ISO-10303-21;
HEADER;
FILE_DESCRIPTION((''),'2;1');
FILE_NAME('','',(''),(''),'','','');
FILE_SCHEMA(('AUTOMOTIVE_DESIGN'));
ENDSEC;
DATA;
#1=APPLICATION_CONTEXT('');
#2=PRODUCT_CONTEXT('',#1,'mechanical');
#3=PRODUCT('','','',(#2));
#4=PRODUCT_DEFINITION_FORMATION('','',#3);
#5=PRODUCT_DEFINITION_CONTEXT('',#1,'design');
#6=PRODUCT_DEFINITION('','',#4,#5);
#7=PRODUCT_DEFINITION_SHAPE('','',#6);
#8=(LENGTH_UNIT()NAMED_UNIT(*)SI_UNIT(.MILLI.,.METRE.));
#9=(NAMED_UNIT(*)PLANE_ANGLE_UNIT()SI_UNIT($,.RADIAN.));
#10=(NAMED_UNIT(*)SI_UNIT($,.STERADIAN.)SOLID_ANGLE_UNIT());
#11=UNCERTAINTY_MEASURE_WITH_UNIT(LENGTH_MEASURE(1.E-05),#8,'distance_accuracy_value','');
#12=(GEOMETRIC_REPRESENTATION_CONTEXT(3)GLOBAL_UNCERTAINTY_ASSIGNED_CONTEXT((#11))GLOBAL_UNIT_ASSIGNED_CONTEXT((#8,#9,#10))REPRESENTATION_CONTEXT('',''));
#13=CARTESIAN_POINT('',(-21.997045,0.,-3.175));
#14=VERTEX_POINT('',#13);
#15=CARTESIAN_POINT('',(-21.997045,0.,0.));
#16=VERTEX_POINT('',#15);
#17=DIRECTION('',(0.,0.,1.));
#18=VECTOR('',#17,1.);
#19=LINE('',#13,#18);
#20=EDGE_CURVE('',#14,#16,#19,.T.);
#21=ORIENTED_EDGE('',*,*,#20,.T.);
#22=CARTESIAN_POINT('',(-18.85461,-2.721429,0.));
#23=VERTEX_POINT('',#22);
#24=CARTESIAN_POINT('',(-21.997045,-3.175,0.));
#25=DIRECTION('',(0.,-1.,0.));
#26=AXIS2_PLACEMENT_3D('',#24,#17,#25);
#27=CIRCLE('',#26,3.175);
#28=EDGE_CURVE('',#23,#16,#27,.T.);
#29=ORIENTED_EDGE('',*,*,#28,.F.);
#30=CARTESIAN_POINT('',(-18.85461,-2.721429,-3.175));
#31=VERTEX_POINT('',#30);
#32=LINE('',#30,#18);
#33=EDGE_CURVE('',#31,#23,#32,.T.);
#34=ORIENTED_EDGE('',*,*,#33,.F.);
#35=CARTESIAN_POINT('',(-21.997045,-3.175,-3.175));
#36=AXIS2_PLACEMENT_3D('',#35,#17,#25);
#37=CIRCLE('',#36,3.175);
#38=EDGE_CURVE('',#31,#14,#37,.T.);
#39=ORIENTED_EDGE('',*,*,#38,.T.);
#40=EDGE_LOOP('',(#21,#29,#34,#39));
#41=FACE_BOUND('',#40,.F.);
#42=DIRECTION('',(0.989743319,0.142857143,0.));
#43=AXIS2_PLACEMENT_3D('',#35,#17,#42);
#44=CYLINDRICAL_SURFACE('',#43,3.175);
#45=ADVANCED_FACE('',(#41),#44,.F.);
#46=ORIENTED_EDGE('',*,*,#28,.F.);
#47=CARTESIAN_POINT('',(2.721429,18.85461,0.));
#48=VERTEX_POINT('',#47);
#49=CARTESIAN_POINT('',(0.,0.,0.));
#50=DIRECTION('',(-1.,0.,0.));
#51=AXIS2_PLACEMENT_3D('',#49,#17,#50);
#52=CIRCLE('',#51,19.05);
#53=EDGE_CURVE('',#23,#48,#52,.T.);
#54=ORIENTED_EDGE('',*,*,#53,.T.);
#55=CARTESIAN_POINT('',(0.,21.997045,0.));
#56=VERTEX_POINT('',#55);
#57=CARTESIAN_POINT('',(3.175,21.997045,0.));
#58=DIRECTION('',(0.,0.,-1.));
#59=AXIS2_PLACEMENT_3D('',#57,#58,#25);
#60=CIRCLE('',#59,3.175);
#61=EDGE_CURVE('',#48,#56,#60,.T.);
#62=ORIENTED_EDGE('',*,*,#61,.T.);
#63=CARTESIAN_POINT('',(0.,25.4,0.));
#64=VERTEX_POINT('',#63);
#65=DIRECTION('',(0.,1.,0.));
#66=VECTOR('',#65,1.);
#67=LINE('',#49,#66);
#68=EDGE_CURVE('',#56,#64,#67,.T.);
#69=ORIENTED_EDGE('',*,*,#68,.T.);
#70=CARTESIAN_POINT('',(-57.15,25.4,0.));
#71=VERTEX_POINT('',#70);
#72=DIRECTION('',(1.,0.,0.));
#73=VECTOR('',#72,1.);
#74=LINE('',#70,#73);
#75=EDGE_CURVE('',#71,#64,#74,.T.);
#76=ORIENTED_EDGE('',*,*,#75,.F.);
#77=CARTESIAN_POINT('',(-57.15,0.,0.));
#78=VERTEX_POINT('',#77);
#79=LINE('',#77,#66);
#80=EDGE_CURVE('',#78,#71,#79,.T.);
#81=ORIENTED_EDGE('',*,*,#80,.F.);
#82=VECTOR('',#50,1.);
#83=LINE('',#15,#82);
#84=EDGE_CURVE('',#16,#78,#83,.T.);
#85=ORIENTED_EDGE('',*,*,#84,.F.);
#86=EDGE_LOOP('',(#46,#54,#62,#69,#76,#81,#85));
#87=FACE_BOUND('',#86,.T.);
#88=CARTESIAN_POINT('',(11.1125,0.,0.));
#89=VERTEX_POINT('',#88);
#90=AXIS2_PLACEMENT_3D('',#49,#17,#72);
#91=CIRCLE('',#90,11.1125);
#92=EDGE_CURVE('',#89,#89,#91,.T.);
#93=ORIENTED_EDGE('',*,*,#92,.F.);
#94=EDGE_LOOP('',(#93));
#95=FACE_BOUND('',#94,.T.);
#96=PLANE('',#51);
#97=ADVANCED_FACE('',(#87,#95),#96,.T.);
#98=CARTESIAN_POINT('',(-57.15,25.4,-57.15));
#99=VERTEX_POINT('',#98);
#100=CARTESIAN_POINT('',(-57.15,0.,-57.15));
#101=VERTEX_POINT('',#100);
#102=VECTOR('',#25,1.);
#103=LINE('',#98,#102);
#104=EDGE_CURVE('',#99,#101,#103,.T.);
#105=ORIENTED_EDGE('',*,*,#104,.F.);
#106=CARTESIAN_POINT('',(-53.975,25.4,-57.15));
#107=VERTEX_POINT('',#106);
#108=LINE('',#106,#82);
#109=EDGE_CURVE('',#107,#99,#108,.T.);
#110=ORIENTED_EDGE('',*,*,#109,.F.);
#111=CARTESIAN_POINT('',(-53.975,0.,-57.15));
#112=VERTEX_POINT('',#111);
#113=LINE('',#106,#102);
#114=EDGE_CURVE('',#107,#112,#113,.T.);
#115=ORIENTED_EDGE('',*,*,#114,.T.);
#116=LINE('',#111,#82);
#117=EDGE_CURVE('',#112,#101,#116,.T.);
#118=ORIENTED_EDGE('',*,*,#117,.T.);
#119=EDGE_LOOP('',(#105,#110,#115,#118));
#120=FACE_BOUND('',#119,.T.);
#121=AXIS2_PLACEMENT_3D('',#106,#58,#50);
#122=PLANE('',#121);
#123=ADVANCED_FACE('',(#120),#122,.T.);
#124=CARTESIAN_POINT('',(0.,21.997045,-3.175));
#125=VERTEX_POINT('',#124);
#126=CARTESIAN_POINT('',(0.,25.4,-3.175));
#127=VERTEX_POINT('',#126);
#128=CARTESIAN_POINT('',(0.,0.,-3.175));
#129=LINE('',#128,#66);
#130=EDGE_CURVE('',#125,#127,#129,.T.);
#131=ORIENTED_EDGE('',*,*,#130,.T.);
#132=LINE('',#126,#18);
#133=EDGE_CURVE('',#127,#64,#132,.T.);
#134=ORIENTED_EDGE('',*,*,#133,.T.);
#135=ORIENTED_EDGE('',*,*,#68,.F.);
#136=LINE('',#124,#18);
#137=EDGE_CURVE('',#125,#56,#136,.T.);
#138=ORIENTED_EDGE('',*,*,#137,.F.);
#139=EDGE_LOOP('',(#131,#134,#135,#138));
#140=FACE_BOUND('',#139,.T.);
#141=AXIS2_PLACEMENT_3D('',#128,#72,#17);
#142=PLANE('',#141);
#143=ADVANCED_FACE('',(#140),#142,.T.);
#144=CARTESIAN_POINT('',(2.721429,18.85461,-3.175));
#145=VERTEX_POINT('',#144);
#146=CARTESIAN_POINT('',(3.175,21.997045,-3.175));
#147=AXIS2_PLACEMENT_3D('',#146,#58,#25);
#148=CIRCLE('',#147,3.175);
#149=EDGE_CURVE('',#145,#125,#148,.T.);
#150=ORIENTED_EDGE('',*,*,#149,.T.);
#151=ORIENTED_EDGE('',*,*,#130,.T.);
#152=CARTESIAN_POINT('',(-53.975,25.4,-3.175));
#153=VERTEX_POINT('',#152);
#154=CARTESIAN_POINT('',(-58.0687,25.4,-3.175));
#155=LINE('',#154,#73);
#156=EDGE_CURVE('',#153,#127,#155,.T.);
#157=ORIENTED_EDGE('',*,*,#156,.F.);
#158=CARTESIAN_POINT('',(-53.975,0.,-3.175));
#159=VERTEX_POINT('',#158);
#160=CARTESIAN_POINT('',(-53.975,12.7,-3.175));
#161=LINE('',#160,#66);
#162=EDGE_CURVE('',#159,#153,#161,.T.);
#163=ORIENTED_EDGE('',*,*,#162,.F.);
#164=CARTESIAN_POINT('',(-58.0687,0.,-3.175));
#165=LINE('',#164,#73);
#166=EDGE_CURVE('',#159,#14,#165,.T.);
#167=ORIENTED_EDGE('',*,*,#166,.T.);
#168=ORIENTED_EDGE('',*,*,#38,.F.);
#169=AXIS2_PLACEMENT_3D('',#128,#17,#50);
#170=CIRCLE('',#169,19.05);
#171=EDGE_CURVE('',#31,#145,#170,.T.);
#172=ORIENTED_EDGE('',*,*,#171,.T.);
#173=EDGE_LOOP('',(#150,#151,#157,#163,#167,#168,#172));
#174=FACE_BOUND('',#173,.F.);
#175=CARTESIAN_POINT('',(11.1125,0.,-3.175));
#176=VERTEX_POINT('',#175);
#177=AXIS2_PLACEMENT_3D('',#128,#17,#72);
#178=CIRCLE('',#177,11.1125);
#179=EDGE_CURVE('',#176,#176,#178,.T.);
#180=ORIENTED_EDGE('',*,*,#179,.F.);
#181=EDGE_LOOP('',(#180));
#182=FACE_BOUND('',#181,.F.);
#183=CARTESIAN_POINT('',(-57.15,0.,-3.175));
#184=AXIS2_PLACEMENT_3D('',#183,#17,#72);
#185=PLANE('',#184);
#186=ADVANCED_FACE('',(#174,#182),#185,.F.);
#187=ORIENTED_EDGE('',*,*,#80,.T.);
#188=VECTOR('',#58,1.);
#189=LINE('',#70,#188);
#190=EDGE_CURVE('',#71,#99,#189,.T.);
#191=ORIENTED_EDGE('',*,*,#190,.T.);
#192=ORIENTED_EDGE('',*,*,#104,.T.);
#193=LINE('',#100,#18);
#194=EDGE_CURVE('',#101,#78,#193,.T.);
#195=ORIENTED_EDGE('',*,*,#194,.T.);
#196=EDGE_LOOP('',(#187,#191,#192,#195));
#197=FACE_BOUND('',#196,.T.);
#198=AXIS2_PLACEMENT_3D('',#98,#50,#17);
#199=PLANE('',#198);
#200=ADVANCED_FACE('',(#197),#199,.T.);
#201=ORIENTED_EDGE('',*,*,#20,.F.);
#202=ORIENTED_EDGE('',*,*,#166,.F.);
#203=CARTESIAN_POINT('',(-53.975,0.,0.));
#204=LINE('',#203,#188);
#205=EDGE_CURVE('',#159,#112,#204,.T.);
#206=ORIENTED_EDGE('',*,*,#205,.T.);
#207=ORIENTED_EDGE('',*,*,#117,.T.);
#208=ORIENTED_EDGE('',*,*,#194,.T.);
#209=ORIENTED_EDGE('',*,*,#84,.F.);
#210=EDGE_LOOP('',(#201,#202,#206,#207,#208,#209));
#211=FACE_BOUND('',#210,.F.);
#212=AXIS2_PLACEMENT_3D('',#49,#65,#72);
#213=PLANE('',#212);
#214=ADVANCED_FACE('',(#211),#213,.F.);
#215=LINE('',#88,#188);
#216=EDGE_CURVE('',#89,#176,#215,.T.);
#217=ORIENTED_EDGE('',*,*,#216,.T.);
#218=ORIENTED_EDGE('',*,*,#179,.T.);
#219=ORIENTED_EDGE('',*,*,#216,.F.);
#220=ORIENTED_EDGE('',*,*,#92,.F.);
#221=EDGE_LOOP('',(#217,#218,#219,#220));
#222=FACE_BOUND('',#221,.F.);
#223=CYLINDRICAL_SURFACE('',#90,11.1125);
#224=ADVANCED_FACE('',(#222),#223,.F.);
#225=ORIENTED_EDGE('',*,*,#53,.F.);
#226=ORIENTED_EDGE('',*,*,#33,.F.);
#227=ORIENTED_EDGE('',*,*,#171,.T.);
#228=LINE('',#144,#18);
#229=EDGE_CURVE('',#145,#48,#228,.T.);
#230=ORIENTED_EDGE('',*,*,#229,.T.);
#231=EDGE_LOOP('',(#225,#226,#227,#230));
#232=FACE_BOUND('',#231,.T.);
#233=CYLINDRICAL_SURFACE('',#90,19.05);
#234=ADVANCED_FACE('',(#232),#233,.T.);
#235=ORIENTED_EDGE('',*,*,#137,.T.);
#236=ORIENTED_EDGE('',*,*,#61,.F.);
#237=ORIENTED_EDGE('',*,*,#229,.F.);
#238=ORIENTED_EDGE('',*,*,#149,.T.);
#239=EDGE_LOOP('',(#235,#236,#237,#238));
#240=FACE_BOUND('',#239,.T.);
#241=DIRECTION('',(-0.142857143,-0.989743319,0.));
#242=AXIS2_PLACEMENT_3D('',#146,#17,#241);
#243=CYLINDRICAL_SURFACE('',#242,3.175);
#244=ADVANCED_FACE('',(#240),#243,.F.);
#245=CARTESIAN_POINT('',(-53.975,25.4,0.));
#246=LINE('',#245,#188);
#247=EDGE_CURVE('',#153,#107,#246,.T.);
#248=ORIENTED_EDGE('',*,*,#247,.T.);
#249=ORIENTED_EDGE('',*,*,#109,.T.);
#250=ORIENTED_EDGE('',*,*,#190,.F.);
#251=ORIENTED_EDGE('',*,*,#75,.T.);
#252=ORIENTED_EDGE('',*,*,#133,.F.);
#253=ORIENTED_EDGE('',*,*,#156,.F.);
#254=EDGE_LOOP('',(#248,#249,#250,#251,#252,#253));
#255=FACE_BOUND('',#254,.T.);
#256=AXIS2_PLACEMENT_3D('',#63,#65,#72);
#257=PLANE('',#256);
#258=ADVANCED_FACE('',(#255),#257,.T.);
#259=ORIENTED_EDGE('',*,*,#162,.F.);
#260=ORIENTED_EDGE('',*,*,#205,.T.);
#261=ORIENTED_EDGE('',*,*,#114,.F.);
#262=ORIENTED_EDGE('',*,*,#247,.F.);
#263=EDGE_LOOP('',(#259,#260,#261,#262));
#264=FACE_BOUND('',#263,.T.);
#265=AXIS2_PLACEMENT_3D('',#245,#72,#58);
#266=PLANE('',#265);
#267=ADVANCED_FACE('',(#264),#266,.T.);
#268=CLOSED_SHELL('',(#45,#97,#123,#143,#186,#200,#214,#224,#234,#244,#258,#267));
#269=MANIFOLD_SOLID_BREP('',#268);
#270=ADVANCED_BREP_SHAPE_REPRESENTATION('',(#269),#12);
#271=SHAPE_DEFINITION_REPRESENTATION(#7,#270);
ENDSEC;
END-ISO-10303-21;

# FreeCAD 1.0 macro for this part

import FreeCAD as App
import Part
import Sketcher
Q = App.Units.Quantity


def edges_at(feature, points):
    """Names of the edges that pass closest to the given points."""
    edges = feature.Shape.Edges
    near = lambda p: min(range(len(edges)), key=lambda i: edges[i].distToShape(Part.Vertex(*p))[0])
    return sorted({f"Edge{near(p) + 1}" for p in points})

doc = App.newDocument("Part")
params = doc.addObject("Spreadsheet::Sheet", "Params")
for row, (alias, value) in enumerate([
    ("sketch1_length", "2.5 in"),
    ("sketch1_width", "2.25 in"),
    ("sketch1_height", "0.125 in"),
    ("sketch1_length2", "0.125 in"),
    ("pad1_length", "1 in"),
    ("sketch2_diameter", "1.5 in"),
    ("pad2_length", "0.125 in"),
    ("sketch3_diameter", "0.875 in"),
    ("pocket1_length", "0.125 in"),
    ("fillet_radius", "0.125 in"),
    ("pocket2_length", "2.4375 in"),
    ("sketch5_height", "2.25 in"),
    ("sketch5_width", "0.125 in"),
    ("pad3_length", "1 in"),
], start=1):
    params.set(f"A{row}", alias)
    params.set(f"B{row}", "=" + value)
    params.setAlias(f"B{row}", alias)

body = doc.addObject("PartDesign::Body", "Body")

# Sketch on XZ plane
sketch1 = doc.addObject("Sketcher::SketchObject", "Sketch")
body.addObject(sketch1)
sketch1.AttachmentSupport = (doc.XZ_Plane, [""])
sketch1.MapMode = "FlatFace"
sketch1.addGeometry(Part.LineSegment(App.Vector(-57.1, 0, 0), App.Vector(0, 0, 0)), False)
sketch1.addGeometry(Part.LineSegment(App.Vector(0, 0, 0), App.Vector(0, -3.2, 0)), False)
sketch1.addGeometry(Part.LineSegment(App.Vector(0, -3.2, 0), App.Vector(-58.1, -3.2, 0)), False)
sketch1.addGeometry(Part.LineSegment(App.Vector(-58.1, -3.2, 0), App.Vector(-112.5, 31.2, 0)), False)
sketch1.addGeometry(Part.LineSegment(App.Vector(-112.5, 31.2, 0), App.Vector(-110.8, 33.9, 0)), False)
sketch1.addGeometry(Part.LineSegment(App.Vector(-110.8, 33.9, 0), App.Vector(-57.1, 0, 0)), False)
sketch1.addConstraint(Sketcher.Constraint("Coincident", 0, 2, 1, 1))
sketch1.addConstraint(Sketcher.Constraint("Coincident", 1, 2, 2, 1))
sketch1.addConstraint(Sketcher.Constraint("Coincident", 2, 2, 3, 1))
sketch1.addConstraint(Sketcher.Constraint("Coincident", 3, 2, 4, 1))
sketch1.addConstraint(Sketcher.Constraint("Coincident", 4, 2, 5, 1))
sketch1.addConstraint(Sketcher.Constraint("Coincident", 5, 2, 0, 1))
sketch1.addConstraint(Sketcher.Constraint("Horizontal", 0))
sketch1.addConstraint(Sketcher.Constraint("Vertical", 1))
sketch1.addConstraint(Sketcher.Constraint("Horizontal", 2))
sketch1.addConstraint(Sketcher.Constraint("Coincident", 0, 2, -1, 1))
sketch1.addConstraint(Sketcher.Constraint("Perpendicular", 3, 4))
sketch1.addConstraint(Sketcher.Constraint("Perpendicular", 4, 5))
sketch1.addConstraint(Sketcher.Constraint("Distance", 5, Q("2.5 in")))
sketch1.addConstraint(Sketcher.Constraint("DistanceX", 0, 1, 0, 2, Q("2.25 in")))
sketch1.addConstraint(Sketcher.Constraint("DistanceY", 1, 2, 1, 1, Q("0.125 in")))
sketch1.addConstraint(Sketcher.Constraint("Distance", 4, Q("0.125 in")))
sketch1.addConstraint(Sketcher.Constraint("DistanceX", 2, 2, 2, 1, 58.0687))
sketch1.setExpression("Constraints[12]", "Params.sketch1_length")
sketch1.setExpression("Constraints[13]", "Params.sketch1_width")
sketch1.setExpression("Constraints[14]", "Params.sketch1_height")
sketch1.setExpression("Constraints[15]", "Params.sketch1_length2")
pad1 = doc.addObject("PartDesign::Pad", "Pad")
body.addObject(pad1)
pad1.Profile = sketch1
pad1.setExpression("Length", "Params.pad1_length")
pad1.Reversed = True

# Sketch on XY plane
sketch2 = doc.addObject("Sketcher::SketchObject", "Sketch001")
body.addObject(sketch2)
sketch2.AttachmentSupport = (doc.XY_Plane, [""])
sketch2.MapMode = "FlatFace"
sketch2.addGeometry(Part.Circle(App.Vector(0, 0, 0), App.Vector(0, 0, 1), 19), False)
sketch2.addConstraint(Sketcher.Constraint("Coincident", 0, 3, -1, 1))
sketch2.addConstraint(Sketcher.Constraint("Diameter", 0, Q("1.5 in")))
sketch2.setExpression("Constraints[1]", "Params.sketch2_diameter")
pad2 = doc.addObject("PartDesign::Pad", "Pad001")
body.addObject(pad2)
pad2.Profile = sketch2
pad2.setExpression("Length", "Params.pad2_length")
pad2.Reversed = True

# Sketch on XY plane
sketch3 = doc.addObject("Sketcher::SketchObject", "Sketch002")
body.addObject(sketch3)
sketch3.AttachmentSupport = (doc.XY_Plane, [""])
sketch3.MapMode = "FlatFace"
sketch3.addGeometry(Part.Circle(App.Vector(0, 0, 0), App.Vector(0, 0, 1), 11), False)
sketch3.addConstraint(Sketcher.Constraint("Coincident", 0, 3, -1, 1))
sketch3.addConstraint(Sketcher.Constraint("Diameter", 0, Q("0.875 in")))
sketch3.setExpression("Constraints[1]", "Params.sketch3_diameter")
pocket1 = doc.addObject("PartDesign::Pocket", "Pocket")
body.addObject(pocket1)
pocket1.Profile = sketch3
pocket1.setExpression("Length", "Params.pocket1_length")
doc.recompute()

fillet = doc.addObject("PartDesign::Fillet", "Fillet")
body.addObject(fillet)
fillet.Base = (pocket1, edges_at(pocket1, [(0, 19.05, -1.587), (-19.05, 0, -1.587)]))
fillet.setExpression("Radius", "Params.fillet_radius")

# Sketch on XZ plane
sketch4 = doc.addObject("Sketcher::SketchObject", "Sketch003")
body.addObject(sketch4)
sketch4.AttachmentSupport = (doc.XZ_Plane, [""])
sketch4.MapMode = "FlatFace"
sketch4.AttachmentOffset = App.Placement(App.Vector(0, 0, -1 * 25.4), App.Rotation())
sketch4.addGeometry(Part.LineSegment(App.Vector(-57, -42, 0), App.Vector(-136, -42, 0)), False)
sketch4.addGeometry(Part.LineSegment(App.Vector(-136, -42, 0), App.Vector(-136, 51, 0)), False)
sketch4.addGeometry(Part.LineSegment(App.Vector(-136, 51, 0), App.Vector(-57, 51, 0)), False)
sketch4.addGeometry(Part.LineSegment(App.Vector(-57, 51, 0), App.Vector(-57, -42, 0)), False)
sketch4.addConstraint(Sketcher.Constraint("Coincident", 0, 2, 1, 1))
sketch4.addConstraint(Sketcher.Constraint("Coincident", 1, 2, 2, 1))
sketch4.addConstraint(Sketcher.Constraint("Coincident", 2, 2, 3, 1))
sketch4.addConstraint(Sketcher.Constraint("Coincident", 3, 2, 0, 1))
sketch4.addConstraint(Sketcher.Constraint("Horizontal", 0))
sketch4.addConstraint(Sketcher.Constraint("Vertical", 1))
sketch4.addConstraint(Sketcher.Constraint("Horizontal", 2))
sketch4.addConstraint(Sketcher.Constraint("Vertical", 3))
sketch4.addConstraint(Sketcher.Constraint("DistanceX", 2, 2, -1, 1, Q("2.25 in")))
sketch4.addConstraint(Sketcher.Constraint("DistanceY", 0, 2, -1, 1, Q("1.67 in")))
sketch4.addConstraint(Sketcher.Constraint("DistanceX", 0, 2, 0, 1, Q("3.0985 in")))
sketch4.addConstraint(Sketcher.Constraint("DistanceY", 1, 1, 1, 2, 93.6413))
pocket2 = doc.addObject("PartDesign::Pocket", "Pocket001")
body.addObject(pocket2)
pocket2.Profile = sketch4
pocket2.setExpression("Length", "Params.pocket2_length")
pocket2.Reversed = True

# Sketch on XZ plane
sketch5 = doc.addObject("Sketcher::SketchObject", "Sketch004")
body.addObject(sketch5)
sketch5.AttachmentSupport = (doc.XZ_Plane, [""])
sketch5.MapMode = "FlatFace"
sketch5.AttachmentOffset = App.Placement(App.Vector(0, 0, -1 * 25.4), App.Rotation())
sketch5.addGeometry(Part.LineSegment(App.Vector(-57.1, -57.1, 0), App.Vector(-57.1, 0, 0)), False)
sketch5.addGeometry(Part.LineSegment(App.Vector(-57.1, 0, 0), App.Vector(-54, 0, 0)), False)
sketch5.addGeometry(Part.LineSegment(App.Vector(-54, 0, 0), App.Vector(-54, -57.1, 0)), False)
sketch5.addGeometry(Part.LineSegment(App.Vector(-54, -57.1, 0), App.Vector(-57.1, -57.1, 0)), False)
sketch5.addConstraint(Sketcher.Constraint("Coincident", 0, 2, 1, 1))
sketch5.addConstraint(Sketcher.Constraint("Coincident", 1, 2, 2, 1))
sketch5.addConstraint(Sketcher.Constraint("Coincident", 2, 2, 3, 1))
sketch5.addConstraint(Sketcher.Constraint("Coincident", 3, 2, 0, 1))
sketch5.addConstraint(Sketcher.Constraint("Vertical", 0))
sketch5.addConstraint(Sketcher.Constraint("Horizontal", 1))
sketch5.addConstraint(Sketcher.Constraint("Vertical", 2))
sketch5.addConstraint(Sketcher.Constraint("Horizontal", 3))
sketch5.addConstraint(Sketcher.Constraint("PointOnObject", 0, 2, -1))
sketch5.addConstraint(Sketcher.Constraint("DistanceY", 0, 1, 0, 2, Q("2.25 in")))
sketch5.addConstraint(Sketcher.Constraint("DistanceX", 1, 1, 1, 2, Q("0.125 in")))
sketch5.addConstraint(Sketcher.Constraint("DistanceX", 0, 2, -1, 1, Q("2.25 in")))
sketch5.setExpression("Constraints[9]", "Params.sketch5_height")
sketch5.setExpression("Constraints[10]", "Params.sketch5_width")
pad3 = doc.addObject("PartDesign::Pad", "Pad002")
body.addObject(pad3)
pad3.Profile = sketch5
pad3.setExpression("Length", "Params.pad3_length")

doc.recompute()
